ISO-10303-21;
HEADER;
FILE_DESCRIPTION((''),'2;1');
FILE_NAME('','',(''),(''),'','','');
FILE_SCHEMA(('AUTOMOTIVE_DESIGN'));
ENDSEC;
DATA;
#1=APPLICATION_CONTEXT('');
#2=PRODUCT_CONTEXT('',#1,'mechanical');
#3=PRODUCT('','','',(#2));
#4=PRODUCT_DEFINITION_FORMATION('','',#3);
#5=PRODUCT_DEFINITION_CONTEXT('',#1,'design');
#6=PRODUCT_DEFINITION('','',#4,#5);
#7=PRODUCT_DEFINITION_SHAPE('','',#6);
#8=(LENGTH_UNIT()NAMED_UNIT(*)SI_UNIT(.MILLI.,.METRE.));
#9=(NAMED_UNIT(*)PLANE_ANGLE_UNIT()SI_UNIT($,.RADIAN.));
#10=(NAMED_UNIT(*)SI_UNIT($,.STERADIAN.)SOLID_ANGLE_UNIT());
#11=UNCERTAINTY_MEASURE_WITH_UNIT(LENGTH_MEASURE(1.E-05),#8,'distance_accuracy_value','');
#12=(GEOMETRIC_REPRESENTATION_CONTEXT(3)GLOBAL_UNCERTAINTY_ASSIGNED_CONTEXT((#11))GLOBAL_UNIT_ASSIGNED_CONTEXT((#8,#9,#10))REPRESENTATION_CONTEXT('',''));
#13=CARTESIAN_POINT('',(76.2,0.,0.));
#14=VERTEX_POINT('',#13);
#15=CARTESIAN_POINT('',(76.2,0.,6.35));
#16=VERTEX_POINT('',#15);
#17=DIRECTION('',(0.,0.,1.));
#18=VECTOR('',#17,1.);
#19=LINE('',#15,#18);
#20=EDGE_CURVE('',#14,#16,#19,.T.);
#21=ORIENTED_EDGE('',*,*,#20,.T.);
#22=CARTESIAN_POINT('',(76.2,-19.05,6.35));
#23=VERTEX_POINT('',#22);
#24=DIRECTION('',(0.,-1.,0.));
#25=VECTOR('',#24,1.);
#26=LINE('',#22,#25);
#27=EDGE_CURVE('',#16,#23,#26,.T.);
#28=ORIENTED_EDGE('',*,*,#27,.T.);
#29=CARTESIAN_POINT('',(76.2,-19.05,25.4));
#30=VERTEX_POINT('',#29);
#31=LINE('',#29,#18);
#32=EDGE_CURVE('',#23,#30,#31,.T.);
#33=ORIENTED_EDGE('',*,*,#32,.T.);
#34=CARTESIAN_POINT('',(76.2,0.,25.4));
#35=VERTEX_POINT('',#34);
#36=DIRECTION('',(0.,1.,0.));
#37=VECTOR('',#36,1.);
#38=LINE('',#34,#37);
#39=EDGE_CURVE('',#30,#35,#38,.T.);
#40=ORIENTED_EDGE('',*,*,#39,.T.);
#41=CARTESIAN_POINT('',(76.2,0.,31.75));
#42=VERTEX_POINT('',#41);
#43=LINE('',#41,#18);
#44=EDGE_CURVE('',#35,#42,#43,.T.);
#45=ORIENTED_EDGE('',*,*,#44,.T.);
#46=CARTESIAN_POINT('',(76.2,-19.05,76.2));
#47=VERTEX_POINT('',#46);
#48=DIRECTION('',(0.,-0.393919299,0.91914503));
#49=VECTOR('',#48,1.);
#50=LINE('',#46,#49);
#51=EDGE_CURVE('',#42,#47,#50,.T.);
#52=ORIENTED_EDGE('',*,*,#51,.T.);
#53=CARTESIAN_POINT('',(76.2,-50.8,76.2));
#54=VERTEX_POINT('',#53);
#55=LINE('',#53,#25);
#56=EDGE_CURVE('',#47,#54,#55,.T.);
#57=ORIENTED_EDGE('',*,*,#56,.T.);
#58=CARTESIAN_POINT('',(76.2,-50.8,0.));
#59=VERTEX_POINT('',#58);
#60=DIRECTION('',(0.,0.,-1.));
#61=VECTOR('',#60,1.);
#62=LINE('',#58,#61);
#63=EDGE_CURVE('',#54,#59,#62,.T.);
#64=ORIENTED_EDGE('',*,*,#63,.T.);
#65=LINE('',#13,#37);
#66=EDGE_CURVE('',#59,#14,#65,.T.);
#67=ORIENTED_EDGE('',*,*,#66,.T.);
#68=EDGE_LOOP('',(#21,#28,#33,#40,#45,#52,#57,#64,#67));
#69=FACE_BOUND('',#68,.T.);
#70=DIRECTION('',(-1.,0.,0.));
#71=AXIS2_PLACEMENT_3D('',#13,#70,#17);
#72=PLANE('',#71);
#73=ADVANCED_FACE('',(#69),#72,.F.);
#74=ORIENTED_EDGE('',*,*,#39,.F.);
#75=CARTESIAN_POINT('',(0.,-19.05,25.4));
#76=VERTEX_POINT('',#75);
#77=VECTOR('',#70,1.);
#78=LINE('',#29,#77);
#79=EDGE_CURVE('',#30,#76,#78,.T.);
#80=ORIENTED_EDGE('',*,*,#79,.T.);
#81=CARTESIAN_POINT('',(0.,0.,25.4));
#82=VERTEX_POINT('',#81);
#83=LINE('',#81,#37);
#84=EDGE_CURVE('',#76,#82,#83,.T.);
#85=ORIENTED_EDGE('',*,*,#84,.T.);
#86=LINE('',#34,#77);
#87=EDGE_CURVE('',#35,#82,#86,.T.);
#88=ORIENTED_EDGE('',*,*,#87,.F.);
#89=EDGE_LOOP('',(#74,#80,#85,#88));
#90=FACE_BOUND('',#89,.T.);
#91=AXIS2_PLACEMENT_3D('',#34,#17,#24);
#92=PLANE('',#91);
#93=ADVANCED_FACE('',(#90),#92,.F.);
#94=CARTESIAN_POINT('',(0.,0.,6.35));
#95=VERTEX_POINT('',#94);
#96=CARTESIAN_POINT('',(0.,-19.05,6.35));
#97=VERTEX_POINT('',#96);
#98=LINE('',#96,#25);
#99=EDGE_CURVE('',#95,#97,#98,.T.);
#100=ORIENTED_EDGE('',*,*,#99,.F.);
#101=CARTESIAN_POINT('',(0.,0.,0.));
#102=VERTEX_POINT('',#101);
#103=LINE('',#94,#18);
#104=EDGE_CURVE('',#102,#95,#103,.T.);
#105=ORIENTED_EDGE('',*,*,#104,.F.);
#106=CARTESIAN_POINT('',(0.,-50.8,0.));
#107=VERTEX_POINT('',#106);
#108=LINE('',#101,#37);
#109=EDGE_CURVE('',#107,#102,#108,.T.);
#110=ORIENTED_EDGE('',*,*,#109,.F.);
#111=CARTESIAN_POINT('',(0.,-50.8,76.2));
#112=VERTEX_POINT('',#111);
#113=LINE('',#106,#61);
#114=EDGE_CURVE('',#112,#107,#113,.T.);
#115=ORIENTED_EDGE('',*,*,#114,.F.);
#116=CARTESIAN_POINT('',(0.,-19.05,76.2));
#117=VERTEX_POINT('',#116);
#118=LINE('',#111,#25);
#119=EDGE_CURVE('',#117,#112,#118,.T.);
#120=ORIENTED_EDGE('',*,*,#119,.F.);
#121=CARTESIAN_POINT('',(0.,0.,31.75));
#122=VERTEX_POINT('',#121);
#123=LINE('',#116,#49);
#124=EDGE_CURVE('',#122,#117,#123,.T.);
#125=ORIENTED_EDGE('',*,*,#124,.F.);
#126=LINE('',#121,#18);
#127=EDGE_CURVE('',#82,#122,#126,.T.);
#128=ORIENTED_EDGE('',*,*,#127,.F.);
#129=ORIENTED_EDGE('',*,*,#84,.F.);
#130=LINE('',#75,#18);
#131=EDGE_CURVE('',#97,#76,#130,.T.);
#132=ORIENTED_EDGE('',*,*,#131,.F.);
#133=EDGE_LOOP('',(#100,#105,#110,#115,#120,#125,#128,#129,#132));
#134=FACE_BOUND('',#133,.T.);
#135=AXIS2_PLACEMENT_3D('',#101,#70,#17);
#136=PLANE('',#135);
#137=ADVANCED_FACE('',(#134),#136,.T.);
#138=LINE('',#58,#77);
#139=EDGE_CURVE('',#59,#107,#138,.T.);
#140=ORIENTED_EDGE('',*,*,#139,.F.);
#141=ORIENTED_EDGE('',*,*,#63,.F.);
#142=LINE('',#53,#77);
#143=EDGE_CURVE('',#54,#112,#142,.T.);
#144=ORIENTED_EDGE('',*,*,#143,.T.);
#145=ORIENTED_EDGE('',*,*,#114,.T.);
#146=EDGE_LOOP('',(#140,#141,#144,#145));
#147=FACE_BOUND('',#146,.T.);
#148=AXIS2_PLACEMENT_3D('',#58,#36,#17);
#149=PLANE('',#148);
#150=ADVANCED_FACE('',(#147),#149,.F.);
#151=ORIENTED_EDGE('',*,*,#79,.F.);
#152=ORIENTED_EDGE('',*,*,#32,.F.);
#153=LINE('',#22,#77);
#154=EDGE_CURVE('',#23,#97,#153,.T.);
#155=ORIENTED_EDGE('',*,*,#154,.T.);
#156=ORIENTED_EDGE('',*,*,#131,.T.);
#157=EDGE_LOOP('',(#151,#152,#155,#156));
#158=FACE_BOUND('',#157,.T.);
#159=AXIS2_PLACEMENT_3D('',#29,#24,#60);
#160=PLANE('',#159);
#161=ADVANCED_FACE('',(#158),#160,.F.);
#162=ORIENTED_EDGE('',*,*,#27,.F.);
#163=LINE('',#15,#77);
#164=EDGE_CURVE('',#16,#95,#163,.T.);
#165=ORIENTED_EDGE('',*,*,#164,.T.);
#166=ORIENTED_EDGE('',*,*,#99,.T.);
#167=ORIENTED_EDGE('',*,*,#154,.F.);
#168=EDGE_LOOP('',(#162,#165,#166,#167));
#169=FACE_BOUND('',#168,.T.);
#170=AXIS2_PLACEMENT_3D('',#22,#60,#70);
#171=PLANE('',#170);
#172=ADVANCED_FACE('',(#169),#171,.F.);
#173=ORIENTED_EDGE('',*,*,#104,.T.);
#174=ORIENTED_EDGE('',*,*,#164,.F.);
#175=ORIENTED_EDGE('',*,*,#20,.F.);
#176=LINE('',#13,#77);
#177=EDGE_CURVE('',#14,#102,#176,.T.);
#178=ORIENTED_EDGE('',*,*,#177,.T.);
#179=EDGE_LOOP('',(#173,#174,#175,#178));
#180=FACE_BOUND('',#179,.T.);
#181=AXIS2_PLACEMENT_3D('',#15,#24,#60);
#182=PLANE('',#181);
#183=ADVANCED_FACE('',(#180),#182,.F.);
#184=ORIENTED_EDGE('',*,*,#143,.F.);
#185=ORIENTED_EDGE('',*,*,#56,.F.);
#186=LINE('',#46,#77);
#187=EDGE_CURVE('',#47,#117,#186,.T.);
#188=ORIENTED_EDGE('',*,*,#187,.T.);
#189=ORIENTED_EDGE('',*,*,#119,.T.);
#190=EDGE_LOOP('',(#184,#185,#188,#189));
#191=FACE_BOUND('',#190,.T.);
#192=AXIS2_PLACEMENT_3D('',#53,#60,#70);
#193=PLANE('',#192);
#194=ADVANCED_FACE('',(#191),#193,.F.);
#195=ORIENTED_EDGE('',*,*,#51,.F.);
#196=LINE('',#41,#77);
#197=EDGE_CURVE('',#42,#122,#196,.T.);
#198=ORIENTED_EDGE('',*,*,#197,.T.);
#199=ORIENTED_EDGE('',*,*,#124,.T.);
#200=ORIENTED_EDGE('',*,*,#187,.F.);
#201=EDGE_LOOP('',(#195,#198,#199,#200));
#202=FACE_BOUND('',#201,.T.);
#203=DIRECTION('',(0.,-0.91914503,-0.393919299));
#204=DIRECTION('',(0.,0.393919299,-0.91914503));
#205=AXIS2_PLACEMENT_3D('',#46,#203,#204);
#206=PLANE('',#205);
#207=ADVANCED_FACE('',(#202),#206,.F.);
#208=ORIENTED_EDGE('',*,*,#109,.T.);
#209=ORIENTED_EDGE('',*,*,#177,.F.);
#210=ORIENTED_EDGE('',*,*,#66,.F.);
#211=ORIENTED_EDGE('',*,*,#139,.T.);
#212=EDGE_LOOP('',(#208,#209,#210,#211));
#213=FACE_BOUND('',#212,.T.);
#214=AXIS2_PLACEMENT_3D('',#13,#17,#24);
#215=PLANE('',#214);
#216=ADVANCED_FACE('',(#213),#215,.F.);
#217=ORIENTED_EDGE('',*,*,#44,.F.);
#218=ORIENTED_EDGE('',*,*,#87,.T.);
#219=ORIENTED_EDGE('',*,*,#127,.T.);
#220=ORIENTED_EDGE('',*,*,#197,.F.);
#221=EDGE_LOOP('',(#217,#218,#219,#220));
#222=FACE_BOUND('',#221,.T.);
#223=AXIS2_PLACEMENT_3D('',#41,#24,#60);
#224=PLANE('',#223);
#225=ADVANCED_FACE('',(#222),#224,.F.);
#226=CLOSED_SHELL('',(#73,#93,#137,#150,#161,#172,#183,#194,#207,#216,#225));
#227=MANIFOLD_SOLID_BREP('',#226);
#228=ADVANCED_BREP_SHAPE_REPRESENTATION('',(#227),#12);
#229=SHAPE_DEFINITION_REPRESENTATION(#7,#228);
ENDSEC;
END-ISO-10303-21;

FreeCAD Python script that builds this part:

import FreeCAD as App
import Part
import Sketcher
from FreeCAD import Vector
Q = App.Units.Quantity


def add_polygon(sketch, points):
    """Adds a closed chain of lines whose ends are joined by coincident constraints."""
    first, n = sketch.GeometryCount, len(points)
    for a, b in zip(points, points[1:] + points[:1]):
        sketch.addGeometry(Part.LineSegment(App.Vector(*a, 0), App.Vector(*b, 0)), False)
    for i in range(n):
        sketch.addConstraint(Sketcher.Constraint("Coincident", first + i, 2, first + (i + 1) % n, 1))

doc = App.newDocument("Part")
body = doc.addObject("PartDesign::Body", "Body")

# Sketch on YZ plane
sketch1 = body.newObject("Sketcher::SketchObject", "Sketch")
sketch1.AttachmentSupport = (doc.getObject("YZ_Plane"), [""])
sketch1.MapMode = "FlatFace"
add_polygon(sketch1, [(-19, 76), (-51, 76), (-51, 0), (0, 0), (0, 6), (-19, 6), (-19, 25), (0, 25), (0, 32)])  # lines 0-8
sketch1.addConstraint([
    Sketcher.Constraint("Horizontal", 0),
    Sketcher.Constraint("Vertical", 1),
    Sketcher.Constraint("Horizontal", 2),
    Sketcher.Constraint("Vertical", 3),
    Sketcher.Constraint("Horizontal", 4),
    Sketcher.Constraint("Vertical", 5),
    Sketcher.Constraint("Horizontal", 6),
    Sketcher.Constraint("Vertical", 7),
    Sketcher.Constraint("Coincident", 2, 2, -1, 1),
    Sketcher.Constraint("PointOnObject", 6, 2, -2),
    Sketcher.Constraint("Vertical", 5, 2, 8, 2),
    Sketcher.Constraint("Equal", 6, 5),
    Sketcher.Constraint("Equal", 3, 7),
    Sketcher.Constraint("DistanceX", 2, 1, 2, 2, Q("2 in")),
    Sketcher.Constraint("DistanceY", 1, 2, 1, 1, Q("3 in")),
    Sketcher.Constraint("DistanceY", -1, 1, 5, 2, Q("1 in")),
    Sketcher.Constraint("DistanceX", 0, 2, 0, 1, Q("1.25 in")),
])
pad1 = body.newObject("PartDesign::Pad", "Pad")
pad1.Profile = sketch1
pad1.Length = Q("3 in")

doc.recompute()
